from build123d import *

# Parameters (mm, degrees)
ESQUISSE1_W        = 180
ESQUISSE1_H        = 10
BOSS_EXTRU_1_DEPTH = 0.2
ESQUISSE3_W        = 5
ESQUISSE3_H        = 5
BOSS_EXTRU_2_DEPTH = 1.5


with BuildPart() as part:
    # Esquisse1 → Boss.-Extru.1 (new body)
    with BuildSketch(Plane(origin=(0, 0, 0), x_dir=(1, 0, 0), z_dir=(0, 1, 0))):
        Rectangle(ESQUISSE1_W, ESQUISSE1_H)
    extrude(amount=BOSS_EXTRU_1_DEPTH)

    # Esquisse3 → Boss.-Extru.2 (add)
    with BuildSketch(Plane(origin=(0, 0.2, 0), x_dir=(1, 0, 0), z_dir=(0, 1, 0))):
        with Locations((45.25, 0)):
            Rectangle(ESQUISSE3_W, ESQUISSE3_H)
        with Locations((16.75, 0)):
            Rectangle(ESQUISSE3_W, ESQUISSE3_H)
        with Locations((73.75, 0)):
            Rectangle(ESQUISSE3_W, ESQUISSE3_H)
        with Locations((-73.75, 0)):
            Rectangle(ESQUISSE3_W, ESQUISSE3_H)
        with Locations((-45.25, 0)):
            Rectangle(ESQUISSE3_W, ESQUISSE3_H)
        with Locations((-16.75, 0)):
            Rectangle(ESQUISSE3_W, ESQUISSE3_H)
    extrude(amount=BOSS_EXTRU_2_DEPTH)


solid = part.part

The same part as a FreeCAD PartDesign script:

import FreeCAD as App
import Part
import Sketcher
from FreeCAD import Vector
Q = App.Units.Quantity

doc = App.newDocument("Part")
params = doc.addObject("Spreadsheet::Sheet", "Params")
for row, (alias, value) in enumerate([
    ("sketch1_width", "180 mm"),
    ("sketch1_height", "10 mm"),
    ("pad1_length", "0.2 mm"),
    ("sketch2_width", "5 mm"),
    ("pad2_length", "1.5 mm"),
], start=1):
    params.set(f"A{row}", alias)
    params.set(f"B{row}", "=" + value)
    params.setAlias(f"B{row}", alias)

body = doc.addObject("PartDesign::Body", "Body")

# Sketch on XZ plane
sketch1 = doc.addObject("Sketcher::SketchObject", "Sketch")
body.addObject(sketch1)
sketch1.AttachmentSupport = (doc.XZ_Plane, [""])
sketch1.MapMode = "FlatFace"
sketch1.addGeometry(Part.LineSegment(Vector(-90, -5, 0), Vector(-90, 5, 0)), False)
sketch1.addGeometry(Part.LineSegment(Vector(-90, 5, 0), Vector(90, 5, 0)), False)
sketch1.addGeometry(Part.LineSegment(Vector(90, 5, 0), Vector(90, -5, 0)), False)
sketch1.addGeometry(Part.LineSegment(Vector(90, -5, 0), Vector(-90, -5, 0)), False)
sketch1.addConstraint(Sketcher.Constraint("Coincident", 0, 2, 1, 1))
sketch1.addConstraint(Sketcher.Constraint("Coincident", 1, 2, 2, 1))
sketch1.addConstraint(Sketcher.Constraint("Coincident", 2, 2, 3, 1))
sketch1.addConstraint(Sketcher.Constraint("Coincident", 3, 2, 0, 1))
sketch1.addConstraint(Sketcher.Constraint("Vertical", 0))
sketch1.addConstraint(Sketcher.Constraint("Horizontal", 1))
sketch1.addConstraint(Sketcher.Constraint("Vertical", 2))
sketch1.addConstraint(Sketcher.Constraint("Horizontal", 3))
sketch1.addConstraint(Sketcher.Constraint("Symmetric", 0, 2, 2, 2, -1, 1))
sketch1.addConstraint(Sketcher.Constraint("DistanceX", 1, 1, 1, 2, Q("180 mm")))
sketch1.addConstraint(Sketcher.Constraint("DistanceY", 0, 1, 0, 2, Q("10 mm")))
sketch1.setExpression("Constraints[9]", "Params.sketch1_width")
sketch1.setExpression("Constraints[10]", "Params.sketch1_height")
pad1 = doc.addObject("PartDesign::Pad", "Pad")
body.addObject(pad1)
pad1.Profile = sketch1
pad1.setExpression("Length", "Params.pad1_length")
pad1.Reversed = True

# Sketch on XZ plane
sketch2 = doc.addObject("Sketcher::SketchObject", "Sketch001")
body.addObject(sketch2)
sketch2.AttachmentSupport = (doc.XZ_Plane, [""])
sketch2.MapMode = "FlatFace"
sketch2.AttachmentOffset = App.Placement(Vector(0, 0, -0.2), App.Rotation())
sketch2.addGeometry(Part.LineSegment(Vector(42.75, -2.5, 0), Vector(42.75, 2.5, 0)), False)
sketch2.addGeometry(Part.LineSegment(Vector(42.75, 2.5, 0), Vector(47.75, 2.5, 0)), False)
sketch2.addGeometry(Part.LineSegment(Vector(47.75, 2.5, 0), Vector(47.75, -2.5, 0)), False)
sketch2.addGeometry(Part.LineSegment(Vector(47.75, -2.5, 0), Vector(42.75, -2.5, 0)), False)
sketch2.addGeometry(Part.LineSegment(Vector(14.25, -2.5, 0), Vector(14.25, 2.5, 0)), False)
sketch2.addGeometry(Part.LineSegment(Vector(14.25, 2.5, 0), Vector(19.25, 2.5, 0)), False)
sketch2.addGeometry(Part.LineSegment(Vector(19.25, 2.5, 0), Vector(19.25, -2.5, 0)), False)
sketch2.addGeometry(Part.LineSegment(Vector(19.25, -2.5, 0), Vector(14.25, -2.5, 0)), False)
sketch2.addGeometry(Part.LineSegment(Vector(71.25, -2.5, 0), Vector(71.25, 2.5, 0)), False)
sketch2.addGeometry(Part.LineSegment(Vector(71.25, 2.5, 0), Vector(76.25, 2.5, 0)), False)
sketch2.addGeometry(Part.LineSegment(Vector(76.25, 2.5, 0), Vector(76.25, -2.5, 0)), False)
sketch2.addGeometry(Part.LineSegment(Vector(76.25, -2.5, 0), Vector(71.25, -2.5, 0)), False)
sketch2.addGeometry(Part.LineSegment(Vector(-76.25, -2.5, 0), Vector(-76.25, 2.5, 0)), False)
sketch2.addGeometry(Part.LineSegment(Vector(-76.25, 2.5, 0), Vector(-71.25, 2.5, 0)), False)
sketch2.addGeometry(Part.LineSegment(Vector(-71.25, 2.5, 0), Vector(-71.25, -2.5, 0)), False)
sketch2.addGeometry(Part.LineSegment(Vector(-71.25, -2.5, 0), Vector(-76.25, -2.5, 0)), False)
sketch2.addGeometry(Part.LineSegment(Vector(-47.75, -2.5, 0), Vector(-47.75, 2.5, 0)), False)
sketch2.addGeometry(Part.LineSegment(Vector(-47.75, 2.5, 0), Vector(-42.75, 2.5, 0)), False)
sketch2.addGeometry(Part.LineSegment(Vector(-42.75, 2.5, 0), Vector(-42.75, -2.5, 0)), False)
sketch2.addGeometry(Part.LineSegment(Vector(-42.75, -2.5, 0), Vector(-47.75, -2.5, 0)), False)
sketch2.addGeometry(Part.LineSegment(Vector(-19.25, -2.5, 0), Vector(-19.25, 2.5, 0)), False)
sketch2.addGeometry(Part.LineSegment(Vector(-19.25, 2.5, 0), Vector(-14.25, 2.5, 0)), False)
sketch2.addGeometry(Part.LineSegment(Vector(-14.25, 2.5, 0), Vector(-14.25, -2.5, 0)), False)
sketch2.addGeometry(Part.LineSegment(Vector(-14.25, -2.5, 0), Vector(-19.25, -2.5, 0)), False)
sketch2.addConstraint(Sketcher.Constraint("Coincident", 0, 2, 1, 1))
sketch2.addConstraint(Sketcher.Constraint("Coincident", 1, 2, 2, 1))
sketch2.addConstraint(Sketcher.Constraint("Coincident", 2, 2, 3, 1))
sketch2.addConstraint(Sketcher.Constraint("Coincident", 3, 2, 0, 1))
sketch2.addConstraint(Sketcher.Constraint("Coincident", 4, 2, 5, 1))
sketch2.addConstraint(Sketcher.Constraint("Coincident", 5, 2, 6, 1))
sketch2.addConstraint(Sketcher.Constraint("Coincident", 6, 2, 7, 1))
sketch2.addConstraint(Sketcher.Constraint("Coincident", 7, 2, 4, 1))
sketch2.addConstraint(Sketcher.Constraint("Coincident", 8, 2, 9, 1))
sketch2.addConstraint(Sketcher.Constraint("Coincident", 9, 2, 10, 1))
sketch2.addConstraint(Sketcher.Constraint("Coincident", 10, 2, 11, 1))
sketch2.addConstraint(Sketcher.Constraint("Coincident", 11, 2, 8, 1))
sketch2.addConstraint(Sketcher.Constraint("Coincident", 12, 2, 13, 1))
sketch2.addConstraint(Sketcher.Constraint("Coincident", 13, 2, 14, 1))
sketch2.addConstraint(Sketcher.Constraint("Coincident", 14, 2, 15, 1))
sketch2.addConstraint(Sketcher.Constraint("Coincident", 15, 2, 12, 1))
sketch2.addConstraint(Sketcher.Constraint("Coincident", 16, 2, 17, 1))
sketch2.addConstraint(Sketcher.Constraint("Coincident", 17, 2, 18, 1))
sketch2.addConstraint(Sketcher.Constraint("Coincident", 18, 2, 19, 1))
sketch2.addConstraint(Sketcher.Constraint("Coincident", 19, 2, 16, 1))
sketch2.addConstraint(Sketcher.Constraint("Coincident", 20, 2, 21, 1))
sketch2.addConstraint(Sketcher.Constraint("Coincident", 21, 2, 22, 1))
sketch2.addConstraint(Sketcher.Constraint("Coincident", 22, 2, 23, 1))
sketch2.addConstraint(Sketcher.Constraint("Coincident", 23, 2, 20, 1))
sketch2.addConstraint(Sketcher.Constraint("Vertical", 0))
sketch2.addConstraint(Sketcher.Constraint("Horizontal", 1))
sketch2.addConstraint(Sketcher.Constraint("Vertical", 2))
sketch2.addConstraint(Sketcher.Constraint("Horizontal", 3))
sketch2.addConstraint(Sketcher.Constraint("Vertical", 4))
sketch2.addConstraint(Sketcher.Constraint("Horizontal", 5))
sketch2.addConstraint(Sketcher.Constraint("Vertical", 6))
sketch2.addConstraint(Sketcher.Constraint("Horizontal", 7))
sketch2.addConstraint(Sketcher.Constraint("Vertical", 8))
sketch2.addConstraint(Sketcher.Constraint("Horizontal", 9))
sketch2.addConstraint(Sketcher.Constraint("Vertical", 10))
sketch2.addConstraint(Sketcher.Constraint("Horizontal", 11))
sketch2.addConstraint(Sketcher.Constraint("Vertical", 12))
sketch2.addConstraint(Sketcher.Constraint("Horizontal", 13))
sketch2.addConstraint(Sketcher.Constraint("Vertical", 14))
sketch2.addConstraint(Sketcher.Constraint("Horizontal", 15))
sketch2.addConstraint(Sketcher.Constraint("Vertical", 16))
sketch2.addConstraint(Sketcher.Constraint("Horizontal", 17))
sketch2.addConstraint(Sketcher.Constraint("Vertical", 18))
sketch2.addConstraint(Sketcher.Constraint("Horizontal", 19))
sketch2.addConstraint(Sketcher.Constraint("Vertical", 20))
sketch2.addConstraint(Sketcher.Constraint("Horizontal", 21))
sketch2.addConstraint(Sketcher.Constraint("Vertical", 22))
sketch2.addConstraint(Sketcher.Constraint("Horizontal", 23))
sketch2.addConstraint(Sketcher.Constraint("Symmetric", 10, 2, 12, 2, -1, 1))
sketch2.addConstraint(Sketcher.Constraint("Symmetric", 8, 2, 14, 2, -1, 1))
sketch2.addConstraint(Sketcher.Constraint("Symmetric", 2, 2, 16, 2, -1, 1))
sketch2.addConstraint(Sketcher.Constraint("Symmetric", 0, 2, 18, 2, -1, 1))
sketch2.addConstraint(Sketcher.Constraint("Symmetric", 6, 2, 20, 2, -1, 1))
sketch2.addConstraint(Sketcher.Constraint("Symmetric", 4, 2, 22, 2, -1, 1))
sketch2.addConstraint(Sketcher.Constraint("Horizontal", 1, 2, 4, 2))
sketch2.addConstraint(Sketcher.Constraint("Horizontal", 3, 2, 6, 2))
sketch2.addConstraint(Sketcher.Constraint("Horizontal", 5, 2, 8, 2))
sketch2.addConstraint(Sketcher.Constraint("Horizontal", 7, 2, 10, 2))
sketch2.addConstraint(Sketcher.Constraint("Horizontal", 9, 2, 12, 2))
sketch2.addConstraint(Sketcher.Constraint("Equal", 3, 5))
sketch2.addConstraint(Sketcher.Constraint("Equal", 7, 9))
sketch2.addConstraint(Sketcher.Constraint("Equal", 23, 0))
sketch2.addConstraint(Sketcher.Constraint("DistanceX", 1, 1, 1, 2, Q("5 mm")))
sketch2.addConstraint(Sketcher.Constraint("DistanceX", 5, 2, 8, 2, Q("52 mm")))
sketch2.addConstraint(Sketcher.Constraint("DistanceX", 12, 2, 0, 2, Q("119 mm")))
sketch2.addConstraint(Sketcher.Constraint("DistanceX", 4, 2, 0, 2, Q("28.5 mm")))
sketch2.setExpression("Constraints[62]", "Params.sketch2_width")
pad2 = doc.addObject("PartDesign::Pad", "Pad001")
body.addObject(pad2)
pad2.Profile = sketch2
pad2.setExpression("Length", "Params.pad2_length")
pad2.Reversed = True

doc.recompute()
